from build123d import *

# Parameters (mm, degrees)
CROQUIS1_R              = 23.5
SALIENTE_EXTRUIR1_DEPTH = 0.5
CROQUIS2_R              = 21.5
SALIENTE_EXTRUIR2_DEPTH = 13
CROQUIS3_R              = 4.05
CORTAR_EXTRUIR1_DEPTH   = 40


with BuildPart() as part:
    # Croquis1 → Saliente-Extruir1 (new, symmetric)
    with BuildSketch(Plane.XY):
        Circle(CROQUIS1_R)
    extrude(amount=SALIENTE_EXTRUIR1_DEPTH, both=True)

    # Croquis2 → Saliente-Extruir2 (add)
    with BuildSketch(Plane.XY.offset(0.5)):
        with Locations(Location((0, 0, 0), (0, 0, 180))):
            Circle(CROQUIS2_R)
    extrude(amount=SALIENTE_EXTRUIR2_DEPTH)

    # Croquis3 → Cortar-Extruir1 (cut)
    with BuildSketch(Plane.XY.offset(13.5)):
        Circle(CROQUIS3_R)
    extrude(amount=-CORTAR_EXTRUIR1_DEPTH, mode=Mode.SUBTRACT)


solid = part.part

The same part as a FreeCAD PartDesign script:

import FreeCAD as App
import Part
import Sketcher

V = App.Vector

doc = App.newDocument("Part")
body = doc.addObject("PartDesign::Body", "Body")

# Sketch on XY plane
sketch1 = doc.addObject("Sketcher::SketchObject", "Sketch")
body.addObject(sketch1)
sketch1.AttachmentSupport = (doc.XY_Plane, [""])
sketch1.MapMode = "FlatFace"
sketch1.addGeometry(Part.Circle(V(0, 0, 0), V(0, 0, 1), 24), False)
sketch1.addConstraint([
    Sketcher.Constraint("Coincident", 0, 3, -1, 1),
    Sketcher.Constraint("Diameter", 0, 47.0),
])
pad1 = doc.addObject("PartDesign::Pad", "Pad")
body.addObject(pad1)
pad1.Profile = sketch1
pad1.Length = 1
pad1.Midplane = True

# Sketch on XY plane
sketch2 = doc.addObject("Sketcher::SketchObject", "Sketch001")
body.addObject(sketch2)
sketch2.AttachmentSupport = (doc.XY_Plane, [""])
sketch2.MapMode = "FlatFace"
sketch2.AttachmentOffset = App.Placement(V(0, 0, 0.5), App.Rotation())
sketch2.addGeometry(Part.Circle(V(0, 0, 0), V(0, 0, 1), 22), False)
sketch2.addConstraint([
    Sketcher.Constraint("Coincident", 0, 3, -1, 1),
    Sketcher.Constraint("Diameter", 0, 43.0),
])
pad2 = doc.addObject("PartDesign::Pad", "Pad001")
body.addObject(pad2)
pad2.Profile = sketch2
pad2.Length = 13

# Sketch on XY plane
sketch3 = doc.addObject("Sketcher::SketchObject", "Sketch002")
body.addObject(sketch3)
sketch3.AttachmentSupport = (doc.XY_Plane, [""])
sketch3.MapMode = "FlatFace"
sketch3.AttachmentOffset = App.Placement(V(0, 0, 13.5), App.Rotation())
sketch3.addGeometry(Part.Circle(V(0, 0, 0), V(0, 0, 1), 4), False)
sketch3.addConstraint([
    Sketcher.Constraint("Coincident", 0, 3, -1, 1),
    Sketcher.Constraint("Diameter", 0, 8.1),
])
pocket1 = doc.addObject("PartDesign::Pocket", "Pocket")
body.addObject(pocket1)
pocket1.Profile = sketch3
pocket1.Length = 40

doc.recompute()
